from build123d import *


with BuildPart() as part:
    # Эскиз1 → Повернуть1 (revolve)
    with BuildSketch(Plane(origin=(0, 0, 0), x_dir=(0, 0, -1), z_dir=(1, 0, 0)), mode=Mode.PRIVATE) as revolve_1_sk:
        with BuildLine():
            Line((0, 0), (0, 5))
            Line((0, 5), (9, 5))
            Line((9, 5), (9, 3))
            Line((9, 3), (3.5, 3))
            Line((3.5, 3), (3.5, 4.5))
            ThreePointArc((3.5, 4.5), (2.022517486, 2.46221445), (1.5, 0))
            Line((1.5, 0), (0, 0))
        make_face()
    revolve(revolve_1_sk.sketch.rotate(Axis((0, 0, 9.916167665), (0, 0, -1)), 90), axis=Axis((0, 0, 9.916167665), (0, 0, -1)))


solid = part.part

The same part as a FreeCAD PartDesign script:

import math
import FreeCAD as App
import Part
import Sketcher
from FreeCAD import Vector
Q = App.Units.Quantity

doc = App.newDocument("Part")
body = doc.addObject("PartDesign::Body", "Body")

# Sketch on YZ plane
sketch1 = body.newObject("Sketcher::SketchObject", "Sketch")
sketch1.AttachmentSupport = (doc.getObject("YZ_Plane"), [""])
sketch1.MapMode = "FlatFace"
sketch1.addGeometry(Part.LineSegment(Vector(5, 0, 0), Vector(0, 0, 0)), False)
sketch1.addGeometry(Part.LineSegment(Vector(0, 0, 0), Vector(0, -1.5, 0)), False)
sketch1.addGeometry(Part.ArcOfCircle(Part.Circle(Vector(0, -7.6, 0), Vector(0, 0, 1), 6.1), math.radians(42), math.radians(90)), False)
sketch1.addGeometry(Part.LineSegment(Vector(4.5, -3.5, 0), Vector(3, -3.5, 0)), False)
sketch1.addGeometry(Part.LineSegment(Vector(3, -3.5, 0), Vector(3, -9, 0)), False)
sketch1.addGeometry(Part.LineSegment(Vector(3, -9, 0), Vector(5, -9, 0)), False)
sketch1.addGeometry(Part.LineSegment(Vector(5, -9, 0), Vector(5, 0, 0)), False)
sketch1.addConstraint(Sketcher.Constraint("Coincident", 0, 2, 1, 1))
sketch1.addConstraint(Sketcher.Constraint("Coincident", 1, 2, 2, 2))
sketch1.addConstraint(Sketcher.Constraint("Coincident", 2, 1, 3, 1))
sketch1.addConstraint(Sketcher.Constraint("Coincident", 3, 2, 4, 1))
sketch1.addConstraint(Sketcher.Constraint("Coincident", 4, 2, 5, 1))
sketch1.addConstraint(Sketcher.Constraint("Coincident", 5, 2, 6, 1))
sketch1.addConstraint(Sketcher.Constraint("Coincident", 6, 2, 0, 1))
sketch1.addConstraint(Sketcher.Constraint("Horizontal", 0))
sketch1.addConstraint(Sketcher.Constraint("Vertical", 1))
sketch1.addConstraint(Sketcher.Constraint("Horizontal", 3))
sketch1.addConstraint(Sketcher.Constraint("Vertical", 4))
sketch1.addConstraint(Sketcher.Constraint("Horizontal", 5))
sketch1.addConstraint(Sketcher.Constraint("Vertical", 6))
sketch1.addConstraint(Sketcher.Constraint("Coincident", 0, 2, -1, 1))
sketch1.addConstraint(Sketcher.Constraint("PointOnObject", 2, 3, -2))
sketch1.addConstraint(Sketcher.Constraint("Equal", 3, 1))
sketch1.addConstraint(Sketcher.Constraint("DistanceX", 0, 2, 0, 1, Q("5 mm")))
sketch1.addConstraint(Sketcher.Constraint("DistanceX", 5, 1, 5, 2, Q("2 mm")))
sketch1.addConstraint(Sketcher.Constraint("DistanceY", 6, 1, 6, 2, Q("9 mm")))
sketch1.addConstraint(Sketcher.Constraint("DistanceX", 3, 2, 3, 1, Q("1.5 mm")))
sketch1.addConstraint(Sketcher.Constraint("DistanceY", 4, 2, 4, 1, Q("5.5 mm")))
revolution = body.newObject("PartDesign::Revolution", "Revolution")
revolution.Profile = sketch1
revolution.ReferenceAxis = (sketch1, ["V_Axis"])
revolution.Angle = 360

doc.recompute()
